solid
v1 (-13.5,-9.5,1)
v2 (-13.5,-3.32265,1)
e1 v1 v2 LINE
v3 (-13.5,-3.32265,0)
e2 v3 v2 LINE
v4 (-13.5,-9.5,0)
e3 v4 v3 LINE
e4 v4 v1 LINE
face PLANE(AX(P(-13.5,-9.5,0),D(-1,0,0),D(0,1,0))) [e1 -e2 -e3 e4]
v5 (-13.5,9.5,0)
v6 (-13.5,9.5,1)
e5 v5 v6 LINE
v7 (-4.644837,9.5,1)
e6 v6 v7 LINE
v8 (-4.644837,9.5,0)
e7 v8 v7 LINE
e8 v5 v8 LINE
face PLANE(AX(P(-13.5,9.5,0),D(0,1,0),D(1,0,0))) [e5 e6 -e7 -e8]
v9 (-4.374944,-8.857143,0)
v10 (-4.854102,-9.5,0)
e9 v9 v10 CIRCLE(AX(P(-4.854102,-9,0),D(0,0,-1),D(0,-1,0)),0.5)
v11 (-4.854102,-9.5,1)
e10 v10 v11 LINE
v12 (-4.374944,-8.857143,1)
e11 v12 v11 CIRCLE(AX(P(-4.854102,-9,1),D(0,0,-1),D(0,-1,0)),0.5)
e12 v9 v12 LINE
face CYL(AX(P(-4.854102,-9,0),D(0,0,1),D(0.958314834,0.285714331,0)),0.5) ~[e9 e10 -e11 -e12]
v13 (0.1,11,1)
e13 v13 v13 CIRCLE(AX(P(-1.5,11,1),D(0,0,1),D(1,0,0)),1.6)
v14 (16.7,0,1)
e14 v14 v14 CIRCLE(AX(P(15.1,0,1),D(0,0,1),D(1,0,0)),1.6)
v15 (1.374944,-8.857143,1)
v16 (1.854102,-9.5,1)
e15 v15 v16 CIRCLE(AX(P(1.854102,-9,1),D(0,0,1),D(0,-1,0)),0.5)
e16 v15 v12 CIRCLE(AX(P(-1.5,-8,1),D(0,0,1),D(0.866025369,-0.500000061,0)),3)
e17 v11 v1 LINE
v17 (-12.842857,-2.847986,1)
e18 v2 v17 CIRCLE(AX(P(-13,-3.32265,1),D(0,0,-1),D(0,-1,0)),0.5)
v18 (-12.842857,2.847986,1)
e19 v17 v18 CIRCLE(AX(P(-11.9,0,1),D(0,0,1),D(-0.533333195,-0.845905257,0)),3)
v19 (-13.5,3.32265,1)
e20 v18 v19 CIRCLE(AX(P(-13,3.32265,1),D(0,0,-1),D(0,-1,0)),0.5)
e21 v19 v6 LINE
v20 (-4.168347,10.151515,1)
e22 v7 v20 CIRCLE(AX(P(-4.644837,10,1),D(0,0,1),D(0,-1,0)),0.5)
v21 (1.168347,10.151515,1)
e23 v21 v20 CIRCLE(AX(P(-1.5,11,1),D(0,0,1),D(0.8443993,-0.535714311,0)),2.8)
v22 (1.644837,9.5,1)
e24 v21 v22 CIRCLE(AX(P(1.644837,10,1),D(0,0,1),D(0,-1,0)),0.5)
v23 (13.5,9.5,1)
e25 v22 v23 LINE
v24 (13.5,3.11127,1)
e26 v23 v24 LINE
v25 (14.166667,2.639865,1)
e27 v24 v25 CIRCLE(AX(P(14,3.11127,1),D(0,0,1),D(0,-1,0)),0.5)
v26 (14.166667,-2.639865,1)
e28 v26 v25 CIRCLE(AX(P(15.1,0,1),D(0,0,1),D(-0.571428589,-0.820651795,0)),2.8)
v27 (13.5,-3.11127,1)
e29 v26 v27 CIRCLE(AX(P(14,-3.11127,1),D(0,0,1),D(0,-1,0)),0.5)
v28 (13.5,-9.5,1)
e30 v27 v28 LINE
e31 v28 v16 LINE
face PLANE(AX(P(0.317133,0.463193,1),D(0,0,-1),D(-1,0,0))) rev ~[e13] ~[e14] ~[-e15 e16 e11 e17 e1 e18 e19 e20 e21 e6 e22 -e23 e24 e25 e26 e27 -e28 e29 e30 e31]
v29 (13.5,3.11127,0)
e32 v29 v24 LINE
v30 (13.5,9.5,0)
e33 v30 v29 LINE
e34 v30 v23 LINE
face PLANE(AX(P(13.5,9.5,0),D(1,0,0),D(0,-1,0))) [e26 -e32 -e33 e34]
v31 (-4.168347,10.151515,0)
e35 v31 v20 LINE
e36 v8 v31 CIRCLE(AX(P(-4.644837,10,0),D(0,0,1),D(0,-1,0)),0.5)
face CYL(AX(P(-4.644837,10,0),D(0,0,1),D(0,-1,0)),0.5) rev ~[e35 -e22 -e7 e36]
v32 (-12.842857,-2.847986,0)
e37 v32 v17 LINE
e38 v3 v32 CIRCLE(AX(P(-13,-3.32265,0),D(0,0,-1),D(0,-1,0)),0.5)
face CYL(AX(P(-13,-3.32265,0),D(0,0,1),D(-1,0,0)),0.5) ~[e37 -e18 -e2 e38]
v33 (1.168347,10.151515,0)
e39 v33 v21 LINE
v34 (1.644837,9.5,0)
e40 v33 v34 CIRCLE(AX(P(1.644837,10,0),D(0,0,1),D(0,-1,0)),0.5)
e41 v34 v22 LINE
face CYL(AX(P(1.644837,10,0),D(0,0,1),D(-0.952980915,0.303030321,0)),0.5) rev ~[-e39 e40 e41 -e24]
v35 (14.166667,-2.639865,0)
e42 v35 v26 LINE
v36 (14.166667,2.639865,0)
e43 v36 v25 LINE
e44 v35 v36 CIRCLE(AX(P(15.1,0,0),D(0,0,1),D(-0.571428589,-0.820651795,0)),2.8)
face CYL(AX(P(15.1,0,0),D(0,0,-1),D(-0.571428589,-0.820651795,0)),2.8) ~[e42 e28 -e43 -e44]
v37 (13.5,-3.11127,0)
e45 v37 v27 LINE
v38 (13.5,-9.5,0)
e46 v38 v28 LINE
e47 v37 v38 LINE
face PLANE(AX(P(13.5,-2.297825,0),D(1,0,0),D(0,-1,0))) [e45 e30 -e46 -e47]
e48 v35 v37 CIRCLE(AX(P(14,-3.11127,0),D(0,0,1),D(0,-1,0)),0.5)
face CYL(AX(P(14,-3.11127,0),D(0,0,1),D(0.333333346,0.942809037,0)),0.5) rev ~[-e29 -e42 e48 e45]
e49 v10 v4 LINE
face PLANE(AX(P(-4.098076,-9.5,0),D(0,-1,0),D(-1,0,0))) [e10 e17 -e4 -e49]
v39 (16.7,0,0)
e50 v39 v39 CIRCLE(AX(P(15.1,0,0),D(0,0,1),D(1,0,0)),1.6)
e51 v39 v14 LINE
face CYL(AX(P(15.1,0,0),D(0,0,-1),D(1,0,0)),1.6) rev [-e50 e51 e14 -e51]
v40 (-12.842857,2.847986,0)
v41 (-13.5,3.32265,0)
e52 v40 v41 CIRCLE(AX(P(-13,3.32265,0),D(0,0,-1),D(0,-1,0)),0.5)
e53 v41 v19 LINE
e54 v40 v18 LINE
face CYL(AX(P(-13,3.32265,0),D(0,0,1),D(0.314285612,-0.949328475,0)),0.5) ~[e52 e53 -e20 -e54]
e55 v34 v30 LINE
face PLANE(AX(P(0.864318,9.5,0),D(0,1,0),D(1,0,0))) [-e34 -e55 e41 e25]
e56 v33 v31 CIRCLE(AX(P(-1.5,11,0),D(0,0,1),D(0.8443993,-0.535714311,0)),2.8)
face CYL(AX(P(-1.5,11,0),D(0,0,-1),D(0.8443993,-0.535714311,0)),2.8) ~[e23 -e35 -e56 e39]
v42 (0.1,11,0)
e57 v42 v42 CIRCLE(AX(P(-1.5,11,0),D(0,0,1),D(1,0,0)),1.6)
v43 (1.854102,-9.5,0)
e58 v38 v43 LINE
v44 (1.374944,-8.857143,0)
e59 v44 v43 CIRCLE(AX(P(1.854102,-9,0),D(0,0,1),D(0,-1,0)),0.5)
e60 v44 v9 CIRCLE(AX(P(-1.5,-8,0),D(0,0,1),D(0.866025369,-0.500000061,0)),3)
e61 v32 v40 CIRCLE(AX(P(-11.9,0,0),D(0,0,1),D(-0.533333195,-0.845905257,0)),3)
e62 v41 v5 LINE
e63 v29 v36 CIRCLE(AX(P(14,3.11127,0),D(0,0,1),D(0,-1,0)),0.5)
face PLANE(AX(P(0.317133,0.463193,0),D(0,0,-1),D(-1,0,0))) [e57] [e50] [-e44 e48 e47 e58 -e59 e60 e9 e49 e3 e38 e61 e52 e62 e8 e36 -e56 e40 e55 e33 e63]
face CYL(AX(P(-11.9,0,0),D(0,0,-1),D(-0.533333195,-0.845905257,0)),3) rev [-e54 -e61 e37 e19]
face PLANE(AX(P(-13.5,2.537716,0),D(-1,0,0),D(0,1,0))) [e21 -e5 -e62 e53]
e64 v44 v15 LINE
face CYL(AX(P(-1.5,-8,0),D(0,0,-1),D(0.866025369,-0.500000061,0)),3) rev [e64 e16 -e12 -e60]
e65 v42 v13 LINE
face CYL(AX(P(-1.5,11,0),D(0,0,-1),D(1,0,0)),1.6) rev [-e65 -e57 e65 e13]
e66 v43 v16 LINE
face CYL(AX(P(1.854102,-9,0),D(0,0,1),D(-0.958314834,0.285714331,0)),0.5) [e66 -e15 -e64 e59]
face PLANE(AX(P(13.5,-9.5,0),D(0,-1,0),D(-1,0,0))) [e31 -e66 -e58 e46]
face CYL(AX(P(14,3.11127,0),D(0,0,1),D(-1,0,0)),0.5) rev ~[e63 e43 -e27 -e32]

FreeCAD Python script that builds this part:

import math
import FreeCAD as App
import Part
import Sketcher

V = App.Vector


def edges_at(feature, points):
    """Names of the edges that pass closest to the given points."""
    edges = feature.Shape.Edges
    near = lambda p: min(range(len(edges)), key=lambda i: edges[i].distToShape(Part.Vertex(*p))[0])
    return sorted({f"Edge{near(p) + 1}" for p in points})

doc = App.newDocument("Part")
body = doc.addObject("PartDesign::Body", "Body")

sketch1 = doc.addObject("Sketcher::SketchObject", "Sketch")
body.addObject(sketch1)
sketch1.AttachmentSupport = (doc.XY_Plane, [""])
sketch1.MapMode = "FlatFace"
sketch1.addGeometry(Part.LineSegment(V(-3.864318, 9.5, 0), V(-13.5, 9.5, 0)), False)
sketch1.addGeometry(Part.LineSegment(V(-13.5, 9.5, 0), V(-13.5, 2.537716, 0)), False)
sketch1.addGeometry(Part.ArcOfCircle(Part.Circle(V(-11.9, 0, 0), V(0, 0, 1), 3), math.radians(-122.230943), math.radians(122.230943)), False)
sketch1.addGeometry(Part.LineSegment(V(-13.5, -2.537716, 0), V(-13.5, -9.5, 0)), False)
sketch1.addGeometry(Part.LineSegment(V(-13.5, -9.5, 0), V(-4.098076, -9.5, 0)), False)
sketch1.addGeometry(Part.ArcOfCircle(Part.Circle(V(-1.5, -8, 0), V(0, 0, 1), 3), math.radians(-30.000004), math.radians(210.000004)), False)
sketch1.addGeometry(Part.LineSegment(V(1.098076, -9.5, 0), V(13.5, -9.5, 0)), False)
sketch1.addGeometry(Part.LineSegment(V(13.5, -9.5, 0), V(13.5, -2.297825, 0)), False)
sketch1.addGeometry(Part.ArcOfCircle(Part.Circle(V(15.1, 0, 0), V(0, 0, 1), 2.8), math.radians(-124.849906), math.radians(124.849906)), False)
sketch1.addGeometry(Part.LineSegment(V(13.5, 2.297825, 0), V(13.5, 9.5, 0)), False)
sketch1.addGeometry(Part.LineSegment(V(13.5, 9.5, 0), V(0.864318, 9.5, 0)), False)
sketch1.addGeometry(Part.ArcOfCircle(Part.Circle(V(-1.5, 11, 0), V(0, 0, 1), 2.8), math.radians(-32.392367), math.radians(212.392367)), False)
sketch1.addGeometry(Part.Circle(V(15.1, 0, 0), V(0, 0, 1), 1.6), False)
sketch1.addGeometry(Part.Circle(V(-1.5, 11, 0), V(0, 0, 1), 1.6), False)
sketch1.addConstraint(Sketcher.Constraint("Coincident", 0, 2, 1, 1))
sketch1.addConstraint(Sketcher.Constraint("Coincident", 1, 2, 2, 2))
sketch1.addConstraint(Sketcher.Constraint("Coincident", 2, 1, 3, 1))
sketch1.addConstraint(Sketcher.Constraint("Coincident", 3, 2, 4, 1))
sketch1.addConstraint(Sketcher.Constraint("Coincident", 4, 2, 5, 2))
sketch1.addConstraint(Sketcher.Constraint("Coincident", 5, 1, 6, 1))
sketch1.addConstraint(Sketcher.Constraint("Coincident", 6, 2, 7, 1))
sketch1.addConstraint(Sketcher.Constraint("Coincident", 7, 2, 8, 1))
sketch1.addConstraint(Sketcher.Constraint("Coincident", 8, 2, 9, 1))
sketch1.addConstraint(Sketcher.Constraint("Coincident", 9, 2, 10, 1))
sketch1.addConstraint(Sketcher.Constraint("Coincident", 10, 2, 11, 1))
sketch1.addConstraint(Sketcher.Constraint("Coincident", 11, 2, 0, 1))
sketch1.addConstraint(Sketcher.Constraint("Horizontal", 0))
sketch1.addConstraint(Sketcher.Constraint("Vertical", 1))
sketch1.addConstraint(Sketcher.Constraint("Vertical", 3))
sketch1.addConstraint(Sketcher.Constraint("Horizontal", 4))
sketch1.addConstraint(Sketcher.Constraint("Horizontal", 6))
sketch1.addConstraint(Sketcher.Constraint("Vertical", 7))
sketch1.addConstraint(Sketcher.Constraint("Vertical", 9))
sketch1.addConstraint(Sketcher.Constraint("Horizontal", 10))
sketch1.addConstraint(Sketcher.Constraint("Coincident", 12, 3, 8, 3))
sketch1.addConstraint(Sketcher.Constraint("Coincident", 13, 3, 11, 3))
sketch1.addConstraint(Sketcher.Constraint("Equal", 2, 5))
sketch1.addConstraint(Sketcher.Constraint("Equal", 8, 11))
sketch1.addConstraint(Sketcher.Constraint("Equal", 12, 13))
sketch1.addConstraint(Sketcher.Constraint("Symmetric", 0, 2, 6, 2, -1, 1))
sketch1.addConstraint(Sketcher.Constraint("Symmetric", 3, 2, 9, 2, -1, 1))
sketch1.addConstraint(Sketcher.Constraint("Symmetric", 3, 2, 6, 2, -2))
sketch1.addConstraint(Sketcher.Constraint("PointOnObject", 2, 3, -1))
sketch1.addConstraint(Sketcher.Constraint("PointOnObject", 8, 3, -1))
sketch1.addConstraint(Sketcher.Constraint("Vertical", 5, 3, 11, 3))
sketch1.addConstraint(Sketcher.Constraint("Radius", 2, 3.0))
sketch1.addConstraint(Sketcher.Constraint("Diameter", 12, 3.2))
sketch1.addConstraint(Sketcher.Constraint("Radius", 8, 2.8))
sketch1.addConstraint(Sketcher.Constraint("DistanceY", 5, 3, -1, 1, 8.0))
sketch1.addConstraint(Sketcher.Constraint("DistanceY", -1, 1, 11, 3, 11.0))
sketch1.addConstraint(Sketcher.Constraint("DistanceX", 2, 3, 8, 3, 27.0))
sketch1.addConstraint(Sketcher.Constraint("DistanceX", 0, 2, 13, 3, 12.0))
sketch1.addConstraint(Sketcher.Constraint("DistanceY", 3, 2, 0, 2, 19.0))
sketch1.addConstraint(Sketcher.Constraint("DistanceX", 5, 3, 6, 2, 15.0))
sketch1.addConstraint(Sketcher.Constraint("DistanceX", 2, 3, -1, 1, 11.9))
pad1 = doc.addObject("PartDesign::Pad", "Pad")
body.addObject(pad1)
pad1.Profile = sketch1
pad1.Length = 1
doc.recompute()

fillet = doc.addObject("PartDesign::Fillet", "Fillet")
body.addObject(fillet)
fillet.Base = (pad1, edges_at(pad1, [(-3.864, 9.5, 0.5)]))
fillet.Radius = 0.5
doc.recompute()

fillet2 = doc.addObject("PartDesign::Fillet", "Fillet001")
body.addObject(fillet2)
fillet2.Base = (fillet, edges_at(fillet, [(0.864, 9.5, 0.5)]))
fillet2.Radius = 0.5
doc.recompute()

fillet3 = doc.addObject("PartDesign::Fillet", "Fillet002")
body.addObject(fillet3)
fillet3.Base = (fillet2, edges_at(fillet2, [(13.5, 2.298, 0.5)]))
fillet3.Radius = 0.5
doc.recompute()

fillet4 = doc.addObject("PartDesign::Fillet", "Fillet003")
body.addObject(fillet4)
fillet4.Base = (fillet3, edges_at(fillet3, [(13.5, -2.298, 0.5)]))
fillet4.Radius = 0.5
doc.recompute()

fillet5 = doc.addObject("PartDesign::Fillet", "Fillet004")
body.addObject(fillet5)
fillet5.Base = (fillet4, edges_at(fillet4, [(-4.098, -9.5, 0.5)]))
fillet5.Radius = 0.5
doc.recompute()

fillet6 = doc.addObject("PartDesign::Fillet", "Fillet005")
body.addObject(fillet6)
fillet6.Base = (fillet5, edges_at(fillet5, [(1.098, -9.5, 0.5), (-13.5, -2.538, 0.5), (-13.5, 2.538, 0.5)]))
fillet6.Radius = 0.5

doc.recompute()
